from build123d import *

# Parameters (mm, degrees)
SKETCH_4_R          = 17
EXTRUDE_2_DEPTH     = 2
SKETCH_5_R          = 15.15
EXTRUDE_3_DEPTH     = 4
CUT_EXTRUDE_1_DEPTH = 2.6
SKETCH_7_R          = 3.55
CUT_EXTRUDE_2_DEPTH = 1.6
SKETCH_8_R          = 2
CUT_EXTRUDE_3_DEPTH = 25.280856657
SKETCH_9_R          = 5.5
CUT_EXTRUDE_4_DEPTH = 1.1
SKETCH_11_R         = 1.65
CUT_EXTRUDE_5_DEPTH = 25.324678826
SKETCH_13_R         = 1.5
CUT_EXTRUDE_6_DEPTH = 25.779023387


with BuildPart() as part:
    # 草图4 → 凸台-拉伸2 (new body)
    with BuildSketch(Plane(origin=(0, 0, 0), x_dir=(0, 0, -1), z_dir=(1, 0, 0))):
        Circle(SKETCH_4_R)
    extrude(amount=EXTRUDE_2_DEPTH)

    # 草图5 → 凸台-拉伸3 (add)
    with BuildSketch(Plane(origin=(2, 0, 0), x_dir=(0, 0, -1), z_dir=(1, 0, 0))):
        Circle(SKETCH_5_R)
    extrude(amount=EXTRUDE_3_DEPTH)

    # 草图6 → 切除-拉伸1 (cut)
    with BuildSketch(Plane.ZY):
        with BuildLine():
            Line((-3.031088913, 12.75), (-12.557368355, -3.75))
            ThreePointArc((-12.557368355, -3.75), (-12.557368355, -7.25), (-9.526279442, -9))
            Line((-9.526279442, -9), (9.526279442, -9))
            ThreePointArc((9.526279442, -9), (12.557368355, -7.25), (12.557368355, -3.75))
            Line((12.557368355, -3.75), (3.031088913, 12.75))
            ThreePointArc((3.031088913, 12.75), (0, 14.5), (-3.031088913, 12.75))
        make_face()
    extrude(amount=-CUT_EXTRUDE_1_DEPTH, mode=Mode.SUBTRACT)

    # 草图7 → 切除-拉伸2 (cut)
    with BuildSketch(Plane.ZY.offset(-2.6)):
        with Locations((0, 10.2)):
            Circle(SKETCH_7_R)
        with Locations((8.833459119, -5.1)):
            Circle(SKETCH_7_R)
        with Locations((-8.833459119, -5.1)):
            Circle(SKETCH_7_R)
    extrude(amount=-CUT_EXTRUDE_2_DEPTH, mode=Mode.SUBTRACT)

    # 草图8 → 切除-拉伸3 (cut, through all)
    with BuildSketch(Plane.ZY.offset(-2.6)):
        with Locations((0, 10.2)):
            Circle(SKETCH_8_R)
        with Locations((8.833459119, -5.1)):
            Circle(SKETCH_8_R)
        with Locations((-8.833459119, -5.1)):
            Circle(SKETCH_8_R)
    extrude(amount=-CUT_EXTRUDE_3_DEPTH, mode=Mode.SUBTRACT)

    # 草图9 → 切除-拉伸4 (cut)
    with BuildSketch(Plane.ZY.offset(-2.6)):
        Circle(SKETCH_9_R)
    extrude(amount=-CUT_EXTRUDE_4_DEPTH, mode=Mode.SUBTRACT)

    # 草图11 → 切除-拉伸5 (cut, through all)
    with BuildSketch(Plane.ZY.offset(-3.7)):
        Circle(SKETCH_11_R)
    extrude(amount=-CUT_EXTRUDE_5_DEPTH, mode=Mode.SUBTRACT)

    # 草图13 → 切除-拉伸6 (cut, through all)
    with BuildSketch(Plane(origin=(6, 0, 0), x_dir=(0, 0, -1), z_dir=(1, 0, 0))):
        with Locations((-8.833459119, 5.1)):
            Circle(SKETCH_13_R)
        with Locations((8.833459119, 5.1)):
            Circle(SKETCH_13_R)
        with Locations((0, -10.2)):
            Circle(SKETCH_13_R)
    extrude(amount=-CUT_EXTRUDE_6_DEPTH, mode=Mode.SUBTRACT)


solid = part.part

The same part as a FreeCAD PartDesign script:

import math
import FreeCAD as App
import Part
import Sketcher
from FreeCAD import Vector
Q = App.Units.Quantity

doc = App.newDocument("Part")
body = doc.addObject("PartDesign::Body", "Body")

# Sketch on YZ plane
sketch1 = doc.addObject("Sketcher::SketchObject", "Sketch")
body.addObject(sketch1)
sketch1.AttachmentSupport = (doc.YZ_Plane, [""])
sketch1.MapMode = "FlatFace"
sketch1.addGeometry(Part.Circle(Vector(0, 0, 0), Vector(0, 0, 1), 17), False)
sketch1.addConstraint([
    Sketcher.Constraint("Coincident", 0, 3, -1, 1),
    Sketcher.Constraint("Diameter", 0, Q("34 mm")),
])
pad1 = doc.addObject("PartDesign::Pad", "Pad")
body.addObject(pad1)
pad1.Profile = sketch1
pad1.Length = 2

# Sketch on YZ plane
sketch2 = doc.addObject("Sketcher::SketchObject", "Sketch001")
body.addObject(sketch2)
sketch2.AttachmentSupport = (doc.YZ_Plane, [""])
sketch2.MapMode = "FlatFace"
sketch2.AttachmentOffset = App.Placement(Vector(0, 0, 2), App.Rotation())
sketch2.addGeometry(Part.Circle(Vector(0, 0, 0), Vector(0, 0, 1), 15), False)
sketch2.addConstraint([
    Sketcher.Constraint("Coincident", 0, 3, -1, 1),
    Sketcher.Constraint("Diameter", 0, Q("30.3 mm")),
])
pad2 = doc.addObject("PartDesign::Pad", "Pad001")
body.addObject(pad2)
pad2.Profile = sketch2
pad2.Length = 4

# Sketch on YZ plane
sketch3 = doc.addObject("Sketcher::SketchObject", "Sketch002")
body.addObject(sketch3)
sketch3.AttachmentSupport = (doc.YZ_Plane, [""])
sketch3.MapMode = "FlatFace"
sketch3.addGeometry([
    Part.LineSegment(Vector(12.8, -3, 0), Vector(-3.8, -12.6, 0)),  # 0
    Part.ArcOfCircle(Part.Circle(Vector(-5.5, -9.5, 0), Vector(0, 0, 1), 3.5), math.radians(180), math.radians(300)),  # 1
    Part.LineSegment(Vector(-9, -9.5, 0), Vector(-9, 9.5, 0)),  # 2
    Part.ArcOfCircle(Part.Circle(Vector(-5.5, 9.5, 0), Vector(0, 0, 1), 3.5), math.radians(60), math.radians(180)),  # 3
    Part.LineSegment(Vector(-3.8, 12.6, 0), Vector(12.8, 3, 0)),  # 4
    Part.ArcOfCircle(Part.Circle(Vector(11, 0, 0), Vector(0, 0, 1), 3.5), math.radians(-60), math.radians(60)),  # 5
], False)
sketch3.addConstraint([
    Sketcher.Constraint("Tangent", 0, 2, 1, 2),
    Sketcher.Constraint("Tangent", 1, 1, 2, 1),
    Sketcher.Constraint("Tangent", 2, 2, 3, 2),
    Sketcher.Constraint("Tangent", 3, 1, 4, 1),
    Sketcher.Constraint("Tangent", 4, 2, 5, 2),
    Sketcher.Constraint("Tangent", 5, 1, 0, 1),
    Sketcher.Constraint("Vertical", 2),
    Sketcher.Constraint("Equal", 1, 3),
    Sketcher.Constraint("Equal", 3, 5),
    Sketcher.Constraint("Symmetric", 0, 2, 3, 1, -1),
    Sketcher.Constraint("Radius", 1, Q("3.5 mm")),
    Sketcher.Constraint("Angle", 0, Q("-150 deg")),
    Sketcher.Constraint("DistanceX", -1, 1, 5, 3, Q("11 mm")),
    Sketcher.Constraint("DistanceX", 1, 1, -1, 1, Q("9 mm")),
])
pocket1 = doc.addObject("PartDesign::Pocket", "Pocket")
body.addObject(pocket1)
pocket1.Profile = sketch3
pocket1.Length = 2.6
pocket1.Reversed = True

# Sketch on YZ plane
sketch4 = doc.addObject("Sketcher::SketchObject", "Sketch003")
body.addObject(sketch4)
sketch4.AttachmentSupport = (doc.YZ_Plane, [""])
sketch4.MapMode = "FlatFace"
sketch4.AttachmentOffset = App.Placement(Vector(0, 0, 2.6), App.Rotation())
sketch4.addGeometry([
    Part.Circle(Vector(10.2, 0, 0), Vector(0, 0, 1), 3.5),
    Part.Circle(Vector(-5.1, 8.8, 0), Vector(0, 0, 1), 3.5),
    Part.Circle(Vector(-5.1, -8.8, 0), Vector(0, 0, 1), 3.5),
], False)
sketch4.addConstraint([
    Sketcher.Constraint("Equal", 0, 1),
    Sketcher.Constraint("Equal", 1, 2),
    Sketcher.Constraint("Symmetric", 1, 3, 2, 3, -1),
    Sketcher.Constraint("PointOnObject", 0, 3, -1),
    Sketcher.Constraint("Diameter", 0, Q("7.1 mm")),
    Sketcher.Constraint("DistanceX", -1, 1, 0, 3, Q("10.2 mm")),
    Sketcher.Constraint("DistanceX", 1, 3, -1, 1, Q("5.1 mm")),
    Sketcher.Constraint("DistanceY", -1, 1, 1, 3, Q("8.833459 mm")),
])
pocket2 = doc.addObject("PartDesign::Pocket", "Pocket001")
body.addObject(pocket2)
pocket2.Profile = sketch4
pocket2.Length = 1.6
pocket2.Reversed = True

# Sketch on YZ plane
sketch5 = doc.addObject("Sketcher::SketchObject", "Sketch004")
body.addObject(sketch5)
sketch5.AttachmentSupport = (doc.YZ_Plane, [""])
sketch5.MapMode = "FlatFace"
sketch5.AttachmentOffset = App.Placement(Vector(0, 0, 2.6), App.Rotation())
sketch5.addGeometry([
    Part.Circle(Vector(10.2, 0, 0), Vector(0, 0, 1), 2),
    Part.Circle(Vector(-5.1, 8.8, 0), Vector(0, 0, 1), 2),
    Part.Circle(Vector(-5.1, -8.8, 0), Vector(0, 0, 1), 2),
], False)
sketch5.addConstraint([
    Sketcher.Constraint("Equal", 0, 1),
    Sketcher.Constraint("Equal", 1, 2),
    Sketcher.Constraint("Symmetric", 1, 3, 2, 3, -1),
    Sketcher.Constraint("PointOnObject", 0, 3, -1),
    Sketcher.Constraint("Diameter", 0, Q("4 mm")),
    Sketcher.Constraint("DistanceX", -1, 1, 0, 3, Q("10.2 mm")),
    Sketcher.Constraint("DistanceX", 1, 3, -1, 1, Q("5.1 mm")),
    Sketcher.Constraint("DistanceY", -1, 1, 1, 3, Q("8.833459 mm")),
])
pocket3 = doc.addObject("PartDesign::Pocket", "Pocket002")
body.addObject(pocket3)
pocket3.Profile = sketch5
pocket3.Type = "ThroughAll"
pocket3.Reversed = True

# Sketch on YZ plane
sketch6 = doc.addObject("Sketcher::SketchObject", "Sketch005")
body.addObject(sketch6)
sketch6.AttachmentSupport = (doc.YZ_Plane, [""])
sketch6.MapMode = "FlatFace"
sketch6.AttachmentOffset = App.Placement(Vector(0, 0, 2.6), App.Rotation())
sketch6.addGeometry(Part.Circle(Vector(0, 0, 0), Vector(0, 0, 1), 6), False)
sketch6.addConstraint([
    Sketcher.Constraint("Coincident", 0, 3, -1, 1),
    Sketcher.Constraint("Diameter", 0, Q("11 mm")),
])
pocket4 = doc.addObject("PartDesign::Pocket", "Pocket003")
body.addObject(pocket4)
pocket4.Profile = sketch6
pocket4.Length = 1.1
pocket4.Reversed = True

# Sketch on YZ plane
sketch7 = doc.addObject("Sketcher::SketchObject", "Sketch006")
body.addObject(sketch7)
sketch7.AttachmentSupport = (doc.YZ_Plane, [""])
sketch7.MapMode = "FlatFace"
sketch7.AttachmentOffset = App.Placement(Vector(0, 0, 3.7), App.Rotation())
sketch7.addGeometry(Part.Circle(Vector(0, 0, 0), Vector(0, 0, 1), 1.6), False)
sketch7.addConstraint([
    Sketcher.Constraint("Coincident", 0, 3, -1, 1),
    Sketcher.Constraint("Diameter", 0, Q("3.3 mm")),
])
pocket5 = doc.addObject("PartDesign::Pocket", "Pocket004")
body.addObject(pocket5)
pocket5.Profile = sketch7
pocket5.Type = "ThroughAll"
pocket5.Reversed = True

# Sketch on YZ plane
sketch8 = doc.addObject("Sketcher::SketchObject", "Sketch007")
body.addObject(sketch8)
sketch8.AttachmentSupport = (doc.YZ_Plane, [""])
sketch8.MapMode = "FlatFace"
sketch8.AttachmentOffset = App.Placement(Vector(0, 0, 6), App.Rotation())
sketch8.addGeometry([
    Part.Circle(Vector(5.1, 8.8, 0), Vector(0, 0, 1), 1.5),
    Part.Circle(Vector(5.1, -8.8, 0), Vector(0, 0, 1), 1.5),
    Part.Circle(Vector(-10.2, 0, 0), Vector(0, 0, 1), 1.5),
], False)
sketch8.addConstraint([
    Sketcher.Constraint("Equal", 0, 1),
    Sketcher.Constraint("Equal", 1, 2),
    Sketcher.Constraint("Symmetric", 0, 3, 1, 3, -1),
    Sketcher.Constraint("PointOnObject", 2, 3, -1),
    Sketcher.Constraint("Diameter", 0, Q("3 mm")),
    Sketcher.Constraint("DistanceX", -1, 1, 0, 3, Q("5.1 mm")),
    Sketcher.Constraint("DistanceX", 2, 3, -1, 1, Q("10.2 mm")),
    Sketcher.Constraint("DistanceY", -1, 1, 0, 3, Q("8.833459 mm")),
])
pocket6 = doc.addObject("PartDesign::Pocket", "Pocket005")
body.addObject(pocket6)
pocket6.Profile = sketch8
pocket6.Type = "ThroughAll"

doc.recompute()
